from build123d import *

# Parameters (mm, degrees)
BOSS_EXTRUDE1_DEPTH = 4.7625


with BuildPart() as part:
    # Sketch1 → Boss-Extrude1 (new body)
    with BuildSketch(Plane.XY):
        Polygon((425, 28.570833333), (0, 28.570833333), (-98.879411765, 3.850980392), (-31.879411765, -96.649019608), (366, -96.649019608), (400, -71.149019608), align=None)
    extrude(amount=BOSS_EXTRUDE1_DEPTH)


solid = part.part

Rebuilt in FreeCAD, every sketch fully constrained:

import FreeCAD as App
import Part
import Sketcher

V = App.Vector
Q = App.Units.Quantity


def add_polygon(sketch, points):
    """Adds a closed chain of lines whose ends are joined by coincident constraints."""
    first, n = sketch.GeometryCount, len(points)
    for a, b in zip(points, points[1:] + points[:1]):
        sketch.addGeometry(Part.LineSegment(App.Vector(*a, 0), App.Vector(*b, 0)), False)
    for i in range(n):
        sketch.addConstraint(Sketcher.Constraint("Coincident", first + i, 2, first + (i + 1) % n, 1))

doc = App.newDocument("Part")
body = doc.addObject("PartDesign::Body", "Body")

# Sketch on XY plane
sketch1 = body.newObject("Sketcher::SketchObject", "Sketch")
sketch1.AttachmentSupport = (doc.getObject("XY_Plane"), [""])
sketch1.MapMode = "FlatFace"
add_polygon(sketch1, [(425, 29), (0, 29), (-99, 4), (-32, -97), (366, -97), (400, -71)])  # lines 0-5
sketch1.addConstraint([
    Sketcher.Constraint("Horizontal", 0),
    Sketcher.Constraint("Horizontal", 3),
    Sketcher.Constraint("PointOnObject", 0, 2, -2),
    Sketcher.Constraint("DistanceX", 0, 2, 0, 1, Q("425 mm")),
    Sketcher.Constraint("DistanceX", -1, 1, 3, 2, Q("366 mm")),
    Sketcher.Constraint("DistanceX", -1, 1, 4, 2, Q("400 mm")),
    Sketcher.Constraint("DistanceX", 1, 2, 2, 2, Q("67 mm")),
    Sketcher.Constraint("DistanceY", 4, 2, 1, 2, Q("75 mm")),
    Sketcher.Constraint("Distance", 4, Q("42.5 mm")),
    Sketcher.Constraint("DistanceX", 3, 1, 3, 2, Q("397.879412 mm")),
    Sketcher.Constraint("Distance", 5, Q("102.805881 mm")),
    Sketcher.Constraint("DistanceY", -1, 1, 1, 2, Q("3.85098 mm")),
])
pad1 = body.newObject("PartDesign::Pad", "Pad")
pad1.Profile = sketch1
pad1.Length = 4.7625

doc.recompute()
